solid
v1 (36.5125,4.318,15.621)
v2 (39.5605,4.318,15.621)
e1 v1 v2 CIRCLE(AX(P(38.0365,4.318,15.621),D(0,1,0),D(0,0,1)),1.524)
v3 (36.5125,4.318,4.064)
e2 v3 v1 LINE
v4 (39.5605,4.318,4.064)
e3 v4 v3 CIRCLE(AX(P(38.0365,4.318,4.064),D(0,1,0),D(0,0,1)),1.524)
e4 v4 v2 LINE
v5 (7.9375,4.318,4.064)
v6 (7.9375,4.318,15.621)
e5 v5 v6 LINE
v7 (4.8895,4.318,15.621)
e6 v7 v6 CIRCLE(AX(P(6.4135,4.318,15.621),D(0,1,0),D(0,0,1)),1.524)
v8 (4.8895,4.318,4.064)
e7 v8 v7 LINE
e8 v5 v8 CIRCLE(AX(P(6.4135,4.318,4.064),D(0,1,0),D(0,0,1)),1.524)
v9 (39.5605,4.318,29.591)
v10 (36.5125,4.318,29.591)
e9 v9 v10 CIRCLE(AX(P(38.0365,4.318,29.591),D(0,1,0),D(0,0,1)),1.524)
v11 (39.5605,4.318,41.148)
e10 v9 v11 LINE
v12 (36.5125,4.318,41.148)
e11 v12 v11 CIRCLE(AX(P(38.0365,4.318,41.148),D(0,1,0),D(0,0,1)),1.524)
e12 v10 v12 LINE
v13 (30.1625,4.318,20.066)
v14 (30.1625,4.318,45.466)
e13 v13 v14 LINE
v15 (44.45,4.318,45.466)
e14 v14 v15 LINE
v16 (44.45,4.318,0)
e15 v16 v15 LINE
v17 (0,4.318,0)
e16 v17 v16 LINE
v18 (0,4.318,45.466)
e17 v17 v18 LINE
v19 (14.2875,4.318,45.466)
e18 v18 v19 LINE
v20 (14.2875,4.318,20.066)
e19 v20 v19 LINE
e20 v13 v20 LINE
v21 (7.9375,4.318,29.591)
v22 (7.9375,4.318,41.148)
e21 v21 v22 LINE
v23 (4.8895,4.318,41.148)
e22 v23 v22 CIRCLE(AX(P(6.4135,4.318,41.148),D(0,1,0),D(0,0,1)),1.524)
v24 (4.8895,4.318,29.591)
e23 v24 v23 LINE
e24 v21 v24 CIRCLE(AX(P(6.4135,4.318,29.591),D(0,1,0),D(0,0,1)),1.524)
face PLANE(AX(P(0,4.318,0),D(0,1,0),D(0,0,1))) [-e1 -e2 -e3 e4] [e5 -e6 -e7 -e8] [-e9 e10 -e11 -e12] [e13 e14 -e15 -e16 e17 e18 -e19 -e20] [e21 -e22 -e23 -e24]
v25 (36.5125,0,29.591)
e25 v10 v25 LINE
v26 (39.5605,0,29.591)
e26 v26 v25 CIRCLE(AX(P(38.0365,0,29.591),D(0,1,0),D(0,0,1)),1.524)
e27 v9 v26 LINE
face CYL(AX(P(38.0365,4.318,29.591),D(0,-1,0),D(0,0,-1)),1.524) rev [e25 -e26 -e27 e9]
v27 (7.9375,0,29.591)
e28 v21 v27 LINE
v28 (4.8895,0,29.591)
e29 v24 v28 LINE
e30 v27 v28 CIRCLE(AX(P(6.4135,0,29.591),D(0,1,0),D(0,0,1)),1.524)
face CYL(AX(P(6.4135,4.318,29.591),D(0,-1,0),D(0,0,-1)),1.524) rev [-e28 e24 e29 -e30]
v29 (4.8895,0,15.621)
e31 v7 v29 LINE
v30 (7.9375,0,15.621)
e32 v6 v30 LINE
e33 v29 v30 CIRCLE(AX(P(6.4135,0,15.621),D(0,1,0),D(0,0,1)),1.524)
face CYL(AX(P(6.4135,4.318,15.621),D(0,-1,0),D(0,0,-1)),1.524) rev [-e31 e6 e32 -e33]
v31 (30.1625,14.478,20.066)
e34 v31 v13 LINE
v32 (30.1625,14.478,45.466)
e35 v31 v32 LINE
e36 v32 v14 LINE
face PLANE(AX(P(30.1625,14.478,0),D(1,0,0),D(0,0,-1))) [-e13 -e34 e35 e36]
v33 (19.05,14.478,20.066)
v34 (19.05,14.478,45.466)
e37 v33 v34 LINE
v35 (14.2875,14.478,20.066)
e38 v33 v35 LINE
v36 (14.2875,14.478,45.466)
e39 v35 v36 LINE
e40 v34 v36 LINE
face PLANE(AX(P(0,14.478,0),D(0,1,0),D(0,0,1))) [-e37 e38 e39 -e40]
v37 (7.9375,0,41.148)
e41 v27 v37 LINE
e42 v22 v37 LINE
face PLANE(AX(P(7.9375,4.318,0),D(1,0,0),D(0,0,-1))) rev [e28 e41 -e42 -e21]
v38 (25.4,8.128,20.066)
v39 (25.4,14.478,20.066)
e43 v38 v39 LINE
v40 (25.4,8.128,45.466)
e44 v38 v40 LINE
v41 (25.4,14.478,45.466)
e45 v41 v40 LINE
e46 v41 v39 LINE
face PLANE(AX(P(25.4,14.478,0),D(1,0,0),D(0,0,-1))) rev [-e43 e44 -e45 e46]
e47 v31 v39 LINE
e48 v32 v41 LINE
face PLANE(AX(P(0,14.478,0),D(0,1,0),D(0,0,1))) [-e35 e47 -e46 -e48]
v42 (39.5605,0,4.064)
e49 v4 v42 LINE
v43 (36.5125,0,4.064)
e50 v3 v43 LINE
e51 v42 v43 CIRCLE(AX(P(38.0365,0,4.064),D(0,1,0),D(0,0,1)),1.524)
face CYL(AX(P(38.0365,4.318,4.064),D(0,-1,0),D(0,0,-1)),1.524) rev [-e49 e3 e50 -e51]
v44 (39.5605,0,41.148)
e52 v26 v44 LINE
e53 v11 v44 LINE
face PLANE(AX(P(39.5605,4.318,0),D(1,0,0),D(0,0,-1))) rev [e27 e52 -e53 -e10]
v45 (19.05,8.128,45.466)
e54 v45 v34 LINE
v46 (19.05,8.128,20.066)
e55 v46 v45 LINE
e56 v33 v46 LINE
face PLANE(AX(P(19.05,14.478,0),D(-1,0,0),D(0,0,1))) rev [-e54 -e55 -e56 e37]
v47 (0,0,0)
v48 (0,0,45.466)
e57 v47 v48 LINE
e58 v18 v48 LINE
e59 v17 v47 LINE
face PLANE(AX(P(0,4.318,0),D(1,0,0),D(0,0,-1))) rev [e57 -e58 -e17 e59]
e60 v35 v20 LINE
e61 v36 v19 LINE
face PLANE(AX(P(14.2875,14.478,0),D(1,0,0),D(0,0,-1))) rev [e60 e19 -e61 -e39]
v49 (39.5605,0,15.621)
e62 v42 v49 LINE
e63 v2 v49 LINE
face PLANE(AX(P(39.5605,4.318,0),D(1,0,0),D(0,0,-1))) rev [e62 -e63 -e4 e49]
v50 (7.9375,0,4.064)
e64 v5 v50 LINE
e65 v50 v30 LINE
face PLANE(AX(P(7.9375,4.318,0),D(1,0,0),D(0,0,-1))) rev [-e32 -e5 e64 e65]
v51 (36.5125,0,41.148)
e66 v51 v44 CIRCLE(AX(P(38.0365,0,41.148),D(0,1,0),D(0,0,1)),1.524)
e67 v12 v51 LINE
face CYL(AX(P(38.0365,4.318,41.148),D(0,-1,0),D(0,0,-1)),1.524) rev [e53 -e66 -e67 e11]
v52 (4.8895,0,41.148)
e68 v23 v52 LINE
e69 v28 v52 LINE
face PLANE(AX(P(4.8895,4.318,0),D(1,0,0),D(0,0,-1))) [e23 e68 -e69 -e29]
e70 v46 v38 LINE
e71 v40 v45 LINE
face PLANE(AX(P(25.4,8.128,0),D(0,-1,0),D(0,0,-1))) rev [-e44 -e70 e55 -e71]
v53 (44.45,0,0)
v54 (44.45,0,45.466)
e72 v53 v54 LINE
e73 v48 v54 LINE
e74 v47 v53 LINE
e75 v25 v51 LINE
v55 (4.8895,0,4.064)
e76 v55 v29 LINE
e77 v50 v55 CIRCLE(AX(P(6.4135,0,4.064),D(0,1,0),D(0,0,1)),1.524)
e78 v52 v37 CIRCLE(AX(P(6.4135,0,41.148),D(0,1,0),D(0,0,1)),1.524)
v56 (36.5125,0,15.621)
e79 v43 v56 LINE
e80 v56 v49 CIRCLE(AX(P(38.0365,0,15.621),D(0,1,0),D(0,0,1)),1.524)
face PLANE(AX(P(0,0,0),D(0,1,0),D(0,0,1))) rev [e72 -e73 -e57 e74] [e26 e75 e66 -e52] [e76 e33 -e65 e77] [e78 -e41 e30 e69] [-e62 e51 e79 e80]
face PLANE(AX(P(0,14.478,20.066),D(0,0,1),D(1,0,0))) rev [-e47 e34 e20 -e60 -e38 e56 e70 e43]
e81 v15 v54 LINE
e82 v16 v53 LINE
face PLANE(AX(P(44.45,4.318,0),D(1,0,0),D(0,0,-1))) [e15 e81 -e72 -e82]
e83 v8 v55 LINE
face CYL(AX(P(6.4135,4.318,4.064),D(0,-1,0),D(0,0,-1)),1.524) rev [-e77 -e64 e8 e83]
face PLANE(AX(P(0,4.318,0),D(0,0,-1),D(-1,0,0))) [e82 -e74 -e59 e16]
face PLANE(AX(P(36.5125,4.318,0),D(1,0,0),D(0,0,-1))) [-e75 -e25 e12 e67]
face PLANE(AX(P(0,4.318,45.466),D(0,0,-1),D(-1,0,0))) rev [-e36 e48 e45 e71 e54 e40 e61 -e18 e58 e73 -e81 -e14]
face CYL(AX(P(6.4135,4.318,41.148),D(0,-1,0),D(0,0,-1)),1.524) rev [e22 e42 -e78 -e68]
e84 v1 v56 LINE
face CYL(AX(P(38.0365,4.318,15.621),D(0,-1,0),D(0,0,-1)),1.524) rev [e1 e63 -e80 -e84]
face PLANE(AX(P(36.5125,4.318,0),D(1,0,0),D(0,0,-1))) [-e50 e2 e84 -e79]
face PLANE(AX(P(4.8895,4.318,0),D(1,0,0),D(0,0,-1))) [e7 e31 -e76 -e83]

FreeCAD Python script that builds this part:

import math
import FreeCAD as App
import Part
import Sketcher
from FreeCAD import Vector
Q = App.Units.Quantity

doc = App.newDocument("Part")
params = doc.addObject("Spreadsheet::Sheet", "Params")
for row, (alias, value) in enumerate([
    ("sketch1_radius", "0.06 in"),
    ("sketch1_width", "1.75 in"),
    ("sketch1_height", "1.79 in"),
    ("sketch1_height2", "0.455 in"),
    ("pad1_length", "0.17 in"),
    ("sketch2_height", "1 in"),
    ("sketch2_width", "0.625 in"),
    ("pad2_length", "0.4 in"),
    ("sketch3_width", "0.25 in"),
], start=1):
    params.set(f"A{row}", alias)
    params.set(f"B{row}", "=" + value)
    params.setAlias(f"B{row}", alias)

body = doc.addObject("PartDesign::Body", "Body")

# Sketch on XZ plane
sketch1 = doc.addObject("Sketcher::SketchObject", "Sketch")
body.addObject(sketch1)
sketch1.AttachmentSupport = (doc.XZ_Plane, [""])
sketch1.MapMode = "FlatFace"
sketch1.addGeometry([
    Part.LineSegment(Vector(44.45, 0, 0), Vector(0, 0, 0)),  # 0
    Part.LineSegment(Vector(0, 0, 0), Vector(0, 45.466, 0)),  # 1
    Part.LineSegment(Vector(0, 45.466, 0), Vector(44.45, 45.466, 0)),  # 2
    Part.LineSegment(Vector(44.45, 45.466, 0), Vector(44.45, 0, 0)),  # 3
    Part.LineSegment(Vector(4.8895, 41.148, 0), Vector(4.8895, 29.591, 0)),  # 4
    Part.ArcOfCircle(Part.Circle(Vector(6.4135, 29.591, 0), Vector(0, 0, 1), 1.524), math.radians(180), math.radians(360)),  # 5
    Part.LineSegment(Vector(7.9375, 29.591, 0), Vector(7.9375, 41.148, 0)),  # 6
    Part.ArcOfCircle(Part.Circle(Vector(6.4135, 41.148, 0), Vector(0, 0, 1), 1.524), math.radians(0), math.radians(180)),  # 7
    Part.LineSegment(Vector(36.5125, 41.148, 0), Vector(36.5125, 29.591, 0)),  # 8
    Part.ArcOfCircle(Part.Circle(Vector(38.0365, 29.591, 0), Vector(0, 0, 1), 1.524), math.radians(180), math.radians(360)),  # 9
    Part.LineSegment(Vector(39.5605, 29.591, 0), Vector(39.5605, 41.148, 0)),  # 10
    Part.ArcOfCircle(Part.Circle(Vector(38.0365, 41.148, 0), Vector(0, 0, 1), 1.524), math.radians(0), math.radians(180)),  # 11
    Part.LineSegment(Vector(4.8895, 15.621, 0), Vector(4.8895, 4.064, 0)),  # 12
    Part.ArcOfCircle(Part.Circle(Vector(6.4135, 4.064, 0), Vector(0, 0, 1), 1.524), math.radians(180), math.radians(360)),  # 13
    Part.LineSegment(Vector(7.9375, 4.064, 0), Vector(7.9375, 15.621, 0)),  # 14
    Part.ArcOfCircle(Part.Circle(Vector(6.4135, 15.621, 0), Vector(0, 0, 1), 1.524), math.radians(0), math.radians(180)),  # 15
    Part.LineSegment(Vector(36.5125, 15.621, 0), Vector(36.5125, 4.064, 0)),  # 16
    Part.ArcOfCircle(Part.Circle(Vector(38.0365, 4.064, 0), Vector(0, 0, 1), 1.524), math.radians(180), math.radians(360)),  # 17
    Part.LineSegment(Vector(39.5605, 4.064, 0), Vector(39.5605, 15.621, 0)),  # 18
    Part.ArcOfCircle(Part.Circle(Vector(38.0365, 15.621, 0), Vector(0, 0, 1), 1.524), math.radians(0), math.radians(180)),  # 19
], False)
sketch1.addConstraint([
    Sketcher.Constraint("Coincident", 0, 2, 1, 1),
    Sketcher.Constraint("Coincident", 1, 2, 2, 1),
    Sketcher.Constraint("Coincident", 2, 2, 3, 1),
    Sketcher.Constraint("Coincident", 3, 2, 0, 1),
    Sketcher.Constraint("Tangent", 4, 2, 5, 1),
    Sketcher.Constraint("Tangent", 5, 2, 6, 1),
    Sketcher.Constraint("Tangent", 6, 2, 7, 1),
    Sketcher.Constraint("Tangent", 7, 2, 4, 1),
    Sketcher.Constraint("Tangent", 8, 2, 9, 1),
    Sketcher.Constraint("Tangent", 9, 2, 10, 1),
    Sketcher.Constraint("Tangent", 10, 2, 11, 1),
    Sketcher.Constraint("Tangent", 11, 2, 8, 1),
    Sketcher.Constraint("Tangent", 12, 2, 13, 1),
    Sketcher.Constraint("Tangent", 13, 2, 14, 1),
    Sketcher.Constraint("Tangent", 14, 2, 15, 1),
    Sketcher.Constraint("Tangent", 15, 2, 12, 1),
    Sketcher.Constraint("Tangent", 16, 2, 17, 1),
    Sketcher.Constraint("Tangent", 17, 2, 18, 1),
    Sketcher.Constraint("Tangent", 18, 2, 19, 1),
    Sketcher.Constraint("Tangent", 19, 2, 16, 1),
    Sketcher.Constraint("Horizontal", 0),
    Sketcher.Constraint("Vertical", 1),
    Sketcher.Constraint("Horizontal", 2),
    Sketcher.Constraint("Vertical", 3),
    Sketcher.Constraint("Vertical", 4),
    Sketcher.Constraint("Vertical", 6),
    Sketcher.Constraint("Vertical", 8),
    Sketcher.Constraint("Vertical", 10),
    Sketcher.Constraint("Vertical", 12),
    Sketcher.Constraint("Vertical", 14),
    Sketcher.Constraint("Vertical", 16),
    Sketcher.Constraint("Vertical", 18),
    Sketcher.Constraint("Coincident", 0, 2, -1, 1),
    Sketcher.Constraint("Equal", 7, 9),
    Sketcher.Constraint("Equal", 11, 13),
    Sketcher.Constraint("Equal", 15, 17),
    Sketcher.Constraint("Horizontal", 5, 3, 9, 3),
    Sketcher.Constraint("Horizontal", 7, 3, 11, 3),
    Sketcher.Constraint("Horizontal", 13, 3, 17, 3),
    Sketcher.Constraint("Horizontal", 15, 3, 19, 3),
    Sketcher.Constraint("Vertical", 7, 3, 13, 3),
    Sketcher.Constraint("Vertical", 11, 3, 17, 3),
    Sketcher.Constraint("Equal", 10, 12),
    Sketcher.Constraint("Radius", 5, Q("0.06 in")),
    Sketcher.Constraint("DistanceX", 0, 2, 0, 1, Q("1.75 in")),
    Sketcher.Constraint("DistanceY", 1, 1, 1, 2, Q("1.79 in")),
    Sketcher.Constraint("DistanceY", 4, 2, 4, 1, Q("0.455 in")),
    Sketcher.Constraint("DistanceY", -1, 1, 7, 3, Q("1.62 in")),
    Sketcher.Constraint("DistanceY", -1, 1, 13, 3, Q("0.16 in")),
    Sketcher.Constraint("DistanceX", -1, 1, 5, 2, Q("0.3125 in")),
    Sketcher.Constraint("DistanceX", -1, 1, 8, 2, Q("1.4375 in")),
])
sketch1.setExpression("Constraints[43]", "Params.sketch1_radius")
sketch1.setExpression("Constraints[44]", "Params.sketch1_width")
sketch1.setExpression("Constraints[45]", "Params.sketch1_height")
sketch1.setExpression("Constraints[46]", "Params.sketch1_height2")
pad1 = doc.addObject("PartDesign::Pad", "Pad")
body.addObject(pad1)
pad1.Profile = sketch1
pad1.setExpression("Length", "Params.pad1_length")
pad1.Reversed = True

# Sketch on XZ plane
sketch2 = doc.addObject("Sketcher::SketchObject", "Sketch001")
body.addObject(sketch2)
sketch2.AttachmentSupport = (doc.XZ_Plane, [""])
sketch2.MapMode = "FlatFace"
sketch2.AttachmentOffset = App.Placement(Vector(0, 0, -0.17 * 25.4), App.Rotation())
sketch2.addGeometry([
    Part.LineSegment(Vector(14.2875, 20.066, 0), Vector(14.2875, 45.466, 0)),
    Part.LineSegment(Vector(14.2875, 45.466, 0), Vector(30.1625, 45.466, 0)),
    Part.LineSegment(Vector(30.1625, 45.466, 0), Vector(30.1625, 20.066, 0)),
    Part.LineSegment(Vector(30.1625, 20.066, 0), Vector(14.2875, 20.066, 0)),
], False)
sketch2.addConstraint([
    Sketcher.Constraint("Coincident", 0, 2, 1, 1),
    Sketcher.Constraint("Coincident", 1, 2, 2, 1),
    Sketcher.Constraint("Coincident", 2, 2, 3, 1),
    Sketcher.Constraint("Coincident", 3, 2, 0, 1),
    Sketcher.Constraint("Vertical", 0),
    Sketcher.Constraint("Horizontal", 1),
    Sketcher.Constraint("Vertical", 2),
    Sketcher.Constraint("Horizontal", 3),
    Sketcher.Constraint("DistanceY", 0, 1, 0, 2, Q("1 in")),
    Sketcher.Constraint("DistanceX", 1, 1, 1, 2, Q("0.625 in")),
    Sketcher.Constraint("DistanceY", -1, 1, 0, 2, Q("1.79 in")),
    Sketcher.Constraint("DistanceX", -1, 1, 0, 2, Q("0.5625 in")),
])
sketch2.setExpression("Constraints[8]", "Params.sketch2_height")
sketch2.setExpression("Constraints[9]", "Params.sketch2_width")
pad2 = doc.addObject("PartDesign::Pad", "Pad001")
body.addObject(pad2)
pad2.Profile = sketch2
pad2.setExpression("Length", "Params.pad2_length")
pad2.Reversed = True

# Sketch on XY plane
sketch3 = doc.addObject("Sketcher::SketchObject", "Sketch002")
body.addObject(sketch3)
sketch3.AttachmentSupport = (doc.XY_Plane, [""])
sketch3.MapMode = "FlatFace"
sketch3.AttachmentOffset = App.Placement(Vector(0, 0, 1.79 * 25.4), App.Rotation())
sketch3.addGeometry([
    Part.LineSegment(Vector(19.05, 14.478, 0), Vector(19.05, 8.128, 0)),
    Part.LineSegment(Vector(19.05, 8.128, 0), Vector(25.4, 8.128, 0)),
    Part.LineSegment(Vector(25.4, 8.128, 0), Vector(25.4, 14.478, 0)),
    Part.LineSegment(Vector(25.4, 14.478, 0), Vector(19.05, 14.478, 0)),
], False)
sketch3.addConstraint([
    Sketcher.Constraint("Coincident", 0, 2, 1, 1),
    Sketcher.Constraint("Coincident", 1, 2, 2, 1),
    Sketcher.Constraint("Coincident", 2, 2, 3, 1),
    Sketcher.Constraint("Coincident", 3, 2, 0, 1),
    Sketcher.Constraint("Vertical", 0),
    Sketcher.Constraint("Horizontal", 1),
    Sketcher.Constraint("Vertical", 2),
    Sketcher.Constraint("Horizontal", 3),
    Sketcher.Constraint("Equal", 3, 0),
    Sketcher.Constraint("DistanceX", -1, 1, 1, 2, Q("1 in")),
    Sketcher.Constraint("DistanceX", 1, 1, 1, 2, Q("0.25 in")),
    Sketcher.Constraint("DistanceY", -1, 1, 0, 2, Q("0.32 in")),
])
sketch3.setExpression("Constraints[10]", "Params.sketch3_width")
pocket1 = doc.addObject("PartDesign::Pocket", "Pocket")
body.addObject(pocket1)
pocket1.Profile = sketch3
pocket1.Type = "ThroughAll"
pocket1.Midplane = True

doc.recompute()
